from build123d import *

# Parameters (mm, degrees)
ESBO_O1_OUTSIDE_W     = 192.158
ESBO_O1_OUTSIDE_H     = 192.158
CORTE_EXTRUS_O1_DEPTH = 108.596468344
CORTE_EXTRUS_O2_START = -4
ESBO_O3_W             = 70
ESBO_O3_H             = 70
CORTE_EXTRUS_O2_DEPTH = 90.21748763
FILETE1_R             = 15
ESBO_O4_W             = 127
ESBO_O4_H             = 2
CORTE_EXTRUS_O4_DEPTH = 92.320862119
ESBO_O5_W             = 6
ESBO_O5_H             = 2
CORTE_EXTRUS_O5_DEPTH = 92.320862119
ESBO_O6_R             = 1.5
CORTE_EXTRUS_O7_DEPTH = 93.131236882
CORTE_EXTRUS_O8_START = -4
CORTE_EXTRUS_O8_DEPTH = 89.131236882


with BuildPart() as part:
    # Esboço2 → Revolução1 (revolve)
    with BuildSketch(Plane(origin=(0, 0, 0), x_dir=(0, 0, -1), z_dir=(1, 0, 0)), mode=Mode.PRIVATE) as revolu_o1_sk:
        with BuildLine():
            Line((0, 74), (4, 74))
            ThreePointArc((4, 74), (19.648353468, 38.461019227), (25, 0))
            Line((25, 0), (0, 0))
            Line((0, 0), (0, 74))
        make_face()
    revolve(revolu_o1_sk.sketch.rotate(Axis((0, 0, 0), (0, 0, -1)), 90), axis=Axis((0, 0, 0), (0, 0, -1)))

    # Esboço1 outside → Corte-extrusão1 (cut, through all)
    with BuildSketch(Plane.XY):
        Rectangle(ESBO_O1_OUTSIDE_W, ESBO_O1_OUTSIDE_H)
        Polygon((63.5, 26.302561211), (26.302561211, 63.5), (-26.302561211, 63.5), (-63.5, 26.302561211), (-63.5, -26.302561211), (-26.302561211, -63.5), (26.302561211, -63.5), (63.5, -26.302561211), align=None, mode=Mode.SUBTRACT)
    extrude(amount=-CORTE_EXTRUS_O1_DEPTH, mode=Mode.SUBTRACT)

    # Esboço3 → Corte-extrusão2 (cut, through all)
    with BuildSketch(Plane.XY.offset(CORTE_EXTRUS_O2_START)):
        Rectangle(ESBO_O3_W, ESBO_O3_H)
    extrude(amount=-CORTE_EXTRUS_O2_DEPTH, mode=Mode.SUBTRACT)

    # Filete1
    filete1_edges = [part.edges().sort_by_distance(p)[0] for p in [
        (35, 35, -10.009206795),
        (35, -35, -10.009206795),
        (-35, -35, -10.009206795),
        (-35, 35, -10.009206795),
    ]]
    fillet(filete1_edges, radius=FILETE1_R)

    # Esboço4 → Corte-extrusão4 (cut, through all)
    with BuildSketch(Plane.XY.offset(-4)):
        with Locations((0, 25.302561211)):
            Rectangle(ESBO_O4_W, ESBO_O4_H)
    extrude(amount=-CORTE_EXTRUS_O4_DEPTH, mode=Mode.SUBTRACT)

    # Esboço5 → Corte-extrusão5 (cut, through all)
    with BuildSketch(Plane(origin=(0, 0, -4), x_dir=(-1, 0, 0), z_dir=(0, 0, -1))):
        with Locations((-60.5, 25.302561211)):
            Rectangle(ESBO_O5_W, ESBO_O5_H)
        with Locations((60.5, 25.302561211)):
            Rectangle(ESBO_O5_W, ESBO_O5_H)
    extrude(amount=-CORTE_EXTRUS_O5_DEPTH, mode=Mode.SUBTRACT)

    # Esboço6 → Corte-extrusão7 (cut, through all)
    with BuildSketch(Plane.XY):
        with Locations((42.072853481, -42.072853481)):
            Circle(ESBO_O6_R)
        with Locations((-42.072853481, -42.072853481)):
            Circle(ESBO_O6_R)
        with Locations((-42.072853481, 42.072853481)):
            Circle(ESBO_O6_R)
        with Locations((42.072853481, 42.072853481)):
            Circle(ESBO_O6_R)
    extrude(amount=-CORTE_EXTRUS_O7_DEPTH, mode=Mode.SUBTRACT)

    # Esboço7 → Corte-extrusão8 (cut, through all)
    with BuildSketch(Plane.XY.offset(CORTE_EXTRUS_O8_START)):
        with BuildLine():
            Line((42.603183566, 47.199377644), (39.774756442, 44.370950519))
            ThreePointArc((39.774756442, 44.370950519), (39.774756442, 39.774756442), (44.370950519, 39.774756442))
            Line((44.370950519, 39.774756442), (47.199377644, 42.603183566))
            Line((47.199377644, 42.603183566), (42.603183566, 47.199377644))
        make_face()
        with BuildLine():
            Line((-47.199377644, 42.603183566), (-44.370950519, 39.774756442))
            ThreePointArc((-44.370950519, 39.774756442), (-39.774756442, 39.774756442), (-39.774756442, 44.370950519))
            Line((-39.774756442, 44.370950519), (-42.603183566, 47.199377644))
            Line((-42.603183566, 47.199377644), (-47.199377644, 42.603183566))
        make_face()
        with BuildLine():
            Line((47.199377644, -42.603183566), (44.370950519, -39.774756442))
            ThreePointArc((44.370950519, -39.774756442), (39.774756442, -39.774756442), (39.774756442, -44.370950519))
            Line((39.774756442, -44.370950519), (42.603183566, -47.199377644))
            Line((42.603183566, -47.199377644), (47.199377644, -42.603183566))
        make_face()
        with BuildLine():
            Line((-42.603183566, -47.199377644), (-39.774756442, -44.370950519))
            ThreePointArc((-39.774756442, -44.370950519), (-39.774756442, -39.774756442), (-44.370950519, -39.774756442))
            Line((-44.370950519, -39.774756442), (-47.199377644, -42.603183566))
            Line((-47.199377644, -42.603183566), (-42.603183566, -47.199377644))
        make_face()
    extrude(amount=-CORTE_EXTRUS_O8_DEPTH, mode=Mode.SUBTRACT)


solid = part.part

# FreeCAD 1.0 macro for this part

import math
import FreeCAD as App
import Part
import Sketcher

V = App.Vector


def edges_at(feature, points):
    """Names of the edges that pass closest to the given points."""
    edges = feature.Shape.Edges
    near = lambda p: min(range(len(edges)), key=lambda i: edges[i].distToShape(Part.Vertex(*p))[0])
    return sorted({f"Edge{near(p) + 1}" for p in points})

doc = App.newDocument("Part")
params = doc.addObject("Spreadsheet::Sheet", "Params")
for row, (alias, value) in enumerate([
    ("sketch1_width", "74 mm"),
    ("sketch1_height", "4 mm"),
    ("sketch1_height2", "25 mm"),
    ("revolution_angle", "360 deg"),
    ("sketch3_width", "70 mm"),
    ("fillet_radius", "15 mm"),
    ("sketch4_width", "127 mm"),
    ("sketch4_height", "2 mm"),
    ("sketch5_width", "6 mm"),
    ("sketch5_height", "2 mm"),
    ("sketch6_diameter", "3 mm"),
    ("sketch7_radius", "3.25 mm"),
    ("sketch7_length", "4 mm"),
], start=1):
    params.set(f"A{row}", alias)
    params.set(f"B{row}", "=" + value)
    params.setAlias(f"B{row}", alias)

body = doc.addObject("PartDesign::Body", "Body")

# Sketch on YZ plane
sketch1 = body.newObject("Sketcher::SketchObject", "Sketch")
sketch1.AttachmentSupport = (doc.getObject("YZ_Plane"), [""])
sketch1.MapMode = "FlatFace"
sketch1.addGeometry(Part.LineSegment(V(74, -4, 0), V(74, 0, 0)), False)
sketch1.addGeometry(Part.LineSegment(V(74, 0, 0), V(0, 0, 0)), False)
sketch1.addGeometry(Part.LineSegment(V(0, 0, 0), V(0, -25, 0)), False)
sketch1.addGeometry(Part.ArcOfCircle(Part.Circle(V(0, 115.9, 0), V(0, 0, 1), 140.9), math.radians(-90), math.radians(-58)), False)
sketch1.addConstraint(Sketcher.Constraint("Coincident", 0, 2, 1, 1))
sketch1.addConstraint(Sketcher.Constraint("Coincident", 1, 2, 2, 1))
sketch1.addConstraint(Sketcher.Constraint("Coincident", 2, 2, 3, 1))
sketch1.addConstraint(Sketcher.Constraint("Coincident", 3, 2, 0, 1))
sketch1.addConstraint(Sketcher.Constraint("Vertical", 0))
sketch1.addConstraint(Sketcher.Constraint("Horizontal", 1))
sketch1.addConstraint(Sketcher.Constraint("Vertical", 2))
sketch1.addConstraint(Sketcher.Constraint("Coincident", 1, 2, -1, 1))
sketch1.addConstraint(Sketcher.Constraint("PointOnObject", 3, 3, -2))
sketch1.addConstraint(Sketcher.Constraint("DistanceX", 1, 2, 1, 1, 74.0))
sketch1.addConstraint(Sketcher.Constraint("DistanceY", 0, 1, 0, 2, 4.0))
sketch1.addConstraint(Sketcher.Constraint("DistanceY", 2, 2, 2, 1, 25.0))
sketch1.setExpression("Constraints[9]", "Params.sketch1_width")
sketch1.setExpression("Constraints[10]", "Params.sketch1_height")
sketch1.setExpression("Constraints[11]", "Params.sketch1_height2")
revolution = body.newObject("PartDesign::Revolution", "Revolution")
revolution.Profile = sketch1
revolution.ReferenceAxis = (sketch1, ["V_Axis"])
revolution.setExpression("Angle", "Params.revolution_angle")

# Sketch on XY plane
sketch2 = body.newObject("Sketcher::SketchObject", "Sketch001")
sketch2.AttachmentSupport = (doc.getObject("XY_Plane"), [""])
sketch2.MapMode = "FlatFace"
sketch2.addGeometry(Part.LineSegment(V(-96, 96, 0), V(-96, -96, 0)), False)
sketch2.addGeometry(Part.LineSegment(V(-96, -96, 0), V(96, -96, 0)), False)
sketch2.addGeometry(Part.LineSegment(V(96, -96, 0), V(96, 96, 0)), False)
sketch2.addGeometry(Part.LineSegment(V(96, 96, 0), V(-96, 96, 0)), False)
sketch2.addGeometry(Part.LineSegment(V(26, 64, 0), V(64, 26, 0)), False)
sketch2.addGeometry(Part.LineSegment(V(64, 26, 0), V(64, -26, 0)), False)
sketch2.addGeometry(Part.LineSegment(V(64, -26, 0), V(26, -64, 0)), False)
sketch2.addGeometry(Part.LineSegment(V(26, -64, 0), V(-26, -64, 0)), False)
sketch2.addGeometry(Part.LineSegment(V(-26, -64, 0), V(-64, -26, 0)), False)
sketch2.addGeometry(Part.LineSegment(V(-64, -26, 0), V(-64, 26, 0)), False)
sketch2.addGeometry(Part.LineSegment(V(-64, 26, 0), V(-26, 64, 0)), False)
sketch2.addGeometry(Part.LineSegment(V(-26, 64, 0), V(26, 64, 0)), False)
sketch2.addConstraint(Sketcher.Constraint("Coincident", 0, 2, 1, 1))
sketch2.addConstraint(Sketcher.Constraint("Coincident", 1, 2, 2, 1))
sketch2.addConstraint(Sketcher.Constraint("Coincident", 2, 2, 3, 1))
sketch2.addConstraint(Sketcher.Constraint("Coincident", 3, 2, 0, 1))
sketch2.addConstraint(Sketcher.Constraint("Coincident", 4, 2, 5, 1))
sketch2.addConstraint(Sketcher.Constraint("Coincident", 5, 2, 6, 1))
sketch2.addConstraint(Sketcher.Constraint("Coincident", 6, 2, 7, 1))
sketch2.addConstraint(Sketcher.Constraint("Coincident", 7, 2, 8, 1))
sketch2.addConstraint(Sketcher.Constraint("Coincident", 8, 2, 9, 1))
sketch2.addConstraint(Sketcher.Constraint("Coincident", 9, 2, 10, 1))
sketch2.addConstraint(Sketcher.Constraint("Coincident", 10, 2, 11, 1))
sketch2.addConstraint(Sketcher.Constraint("Coincident", 11, 2, 4, 1))
sketch2.addConstraint(Sketcher.Constraint("Vertical", 0))
sketch2.addConstraint(Sketcher.Constraint("Horizontal", 1))
sketch2.addConstraint(Sketcher.Constraint("Vertical", 2))
sketch2.addConstraint(Sketcher.Constraint("Horizontal", 3))
sketch2.addConstraint(Sketcher.Constraint("Vertical", 5))
sketch2.addConstraint(Sketcher.Constraint("Horizontal", 7))
sketch2.addConstraint(Sketcher.Constraint("Vertical", 9))
sketch2.addConstraint(Sketcher.Constraint("Horizontal", 11))
sketch2.addConstraint(Sketcher.Constraint("Symmetric", 0, 2, 2, 2, -1, 1))
sketch2.addConstraint(Sketcher.Constraint("Symmetric", 4, 2, 8, 2, -1, 1))
sketch2.addConstraint(Sketcher.Constraint("Symmetric", 6, 2, 10, 2, -1, 1))
sketch2.addConstraint(Sketcher.Constraint("Perpendicular", 4, 6))
sketch2.addConstraint(Sketcher.Constraint("Perpendicular", 6, 8))
sketch2.addConstraint(Sketcher.Constraint("Perpendicular", 8, 10))
sketch2.addConstraint(Sketcher.Constraint("Horizontal", 5, 2, 8, 2))
sketch2.addConstraint(Sketcher.Constraint("Vertical", 7, 2, 10, 2))
sketch2.addConstraint(Sketcher.Constraint("Equal", 3, 0))
sketch2.addConstraint(Sketcher.Constraint("Equal", 11, 5))
sketch2.addConstraint(Sketcher.Constraint("DistanceX", 8, 2, 5, 2, 127.0))
sketch2.addConstraint(Sketcher.Constraint("DistanceX", 1, 1, 1, 2, 192.158))
sketch2.addConstraint(Sketcher.Constraint("DistanceX", 7, 2, 7, 1, 52.605122))
pocket1 = body.newObject("PartDesign::Pocket", "Pocket")
pocket1.Profile = sketch2
pocket1.Type = "ThroughAll"

# Sketch on XY plane
sketch3 = body.newObject("Sketcher::SketchObject", "Sketch002")
sketch3.AttachmentSupport = (doc.getObject("XY_Plane"), [""])
sketch3.MapMode = "FlatFace"
sketch3.AttachmentOffset = App.Placement(V(0, 0, -4), App.Rotation())
sketch3.addGeometry(Part.LineSegment(V(-35, 35, 0), V(-35, -35, 0)), False)
sketch3.addGeometry(Part.LineSegment(V(-35, -35, 0), V(35, -35, 0)), False)
sketch3.addGeometry(Part.LineSegment(V(35, -35, 0), V(35, 35, 0)), False)
sketch3.addGeometry(Part.LineSegment(V(35, 35, 0), V(-35, 35, 0)), False)
sketch3.addConstraint(Sketcher.Constraint("Coincident", 0, 2, 1, 1))
sketch3.addConstraint(Sketcher.Constraint("Coincident", 1, 2, 2, 1))
sketch3.addConstraint(Sketcher.Constraint("Coincident", 2, 2, 3, 1))
sketch3.addConstraint(Sketcher.Constraint("Coincident", 3, 2, 0, 1))
sketch3.addConstraint(Sketcher.Constraint("Vertical", 0))
sketch3.addConstraint(Sketcher.Constraint("Horizontal", 1))
sketch3.addConstraint(Sketcher.Constraint("Vertical", 2))
sketch3.addConstraint(Sketcher.Constraint("Horizontal", 3))
sketch3.addConstraint(Sketcher.Constraint("Symmetric", 0, 2, 2, 2, -1, 1))
sketch3.addConstraint(Sketcher.Constraint("Equal", 3, 0))
sketch3.addConstraint(Sketcher.Constraint("DistanceX", 1, 1, 1, 2, 70.0))
sketch3.setExpression("Constraints[10]", "Params.sketch3_width")
pocket2 = body.newObject("PartDesign::Pocket", "Pocket001")
pocket2.Profile = sketch3
pocket2.Type = "ThroughAll"
doc.recompute()

fillet = body.newObject("PartDesign::Fillet", "Fillet")
fillet.Base = (pocket2, edges_at(pocket2, [
    (35, 35, -10.009),
    (35, -35, -10.009),
    (-35, -35, -10.009),
    (-35, 35, -10.009),
]))
fillet.setExpression("Radius", "Params.fillet_radius")

# Sketch on XY plane
sketch4 = body.newObject("Sketcher::SketchObject", "Sketch003")
sketch4.AttachmentSupport = (doc.getObject("XY_Plane"), [""])
sketch4.MapMode = "FlatFace"
sketch4.AttachmentOffset = App.Placement(V(0, 0, -4), App.Rotation())
sketch4.addGeometry(Part.LineSegment(V(-63.5, 26.3, 0), V(-63.5, 24.3, 0)), False)
sketch4.addGeometry(Part.LineSegment(V(-63.5, 24.3, 0), V(63.5, 24.3, 0)), False)
sketch4.addGeometry(Part.LineSegment(V(63.5, 24.3, 0), V(63.5, 26.3, 0)), False)
sketch4.addGeometry(Part.LineSegment(V(63.5, 26.3, 0), V(-63.5, 26.3, 0)), False)
sketch4.addConstraint(Sketcher.Constraint("Coincident", 0, 2, 1, 1))
sketch4.addConstraint(Sketcher.Constraint("Coincident", 1, 2, 2, 1))
sketch4.addConstraint(Sketcher.Constraint("Coincident", 2, 2, 3, 1))
sketch4.addConstraint(Sketcher.Constraint("Coincident", 3, 2, 0, 1))
sketch4.addConstraint(Sketcher.Constraint("Vertical", 0))
sketch4.addConstraint(Sketcher.Constraint("Horizontal", 1))
sketch4.addConstraint(Sketcher.Constraint("Vertical", 2))
sketch4.addConstraint(Sketcher.Constraint("Horizontal", 3))
sketch4.addConstraint(Sketcher.Constraint("DistanceX", 1, 1, 1, 2, 127.0))
sketch4.addConstraint(Sketcher.Constraint("DistanceY", 0, 2, 0, 1, 2.0))
sketch4.addConstraint(Sketcher.Constraint("DistanceX", 0, 2, -1, 1, 63.5))
sketch4.addConstraint(Sketcher.Constraint("DistanceY", -1, 1, 0, 2, 24.302561))
sketch4.setExpression("Constraints[8]", "Params.sketch4_width")
sketch4.setExpression("Constraints[9]", "Params.sketch4_height")
pocket3 = body.newObject("PartDesign::Pocket", "Pocket002")
pocket3.Profile = sketch4
pocket3.Type = "ThroughAll"

# Sketch on XY plane
sketch5 = body.newObject("Sketcher::SketchObject", "Sketch004")
sketch5.AttachmentSupport = (doc.getObject("XY_Plane"), [""])
sketch5.MapMode = "FlatFace"
sketch5.AttachmentOffset = App.Placement(V(0, 0, -4), App.Rotation())
sketch5.addGeometry(Part.LineSegment(V(63.5, 26.3, 0), V(63.5, 24.3, 0)), False)
sketch5.addGeometry(Part.LineSegment(V(63.5, 24.3, 0), V(57.5, 24.3, 0)), False)
sketch5.addGeometry(Part.LineSegment(V(57.5, 24.3, 0), V(57.5, 26.3, 0)), False)
sketch5.addGeometry(Part.LineSegment(V(57.5, 26.3, 0), V(63.5, 26.3, 0)), False)
sketch5.addGeometry(Part.LineSegment(V(-57.5, 26.3, 0), V(-57.5, 24.3, 0)), False)
sketch5.addGeometry(Part.LineSegment(V(-57.5, 24.3, 0), V(-63.5, 24.3, 0)), False)
sketch5.addGeometry(Part.LineSegment(V(-63.5, 24.3, 0), V(-63.5, 26.3, 0)), False)
sketch5.addGeometry(Part.LineSegment(V(-63.5, 26.3, 0), V(-57.5, 26.3, 0)), False)
sketch5.addConstraint(Sketcher.Constraint("Coincident", 0, 2, 1, 1))
sketch5.addConstraint(Sketcher.Constraint("Coincident", 1, 2, 2, 1))
sketch5.addConstraint(Sketcher.Constraint("Coincident", 2, 2, 3, 1))
sketch5.addConstraint(Sketcher.Constraint("Coincident", 3, 2, 0, 1))
sketch5.addConstraint(Sketcher.Constraint("Coincident", 4, 2, 5, 1))
sketch5.addConstraint(Sketcher.Constraint("Coincident", 5, 2, 6, 1))
sketch5.addConstraint(Sketcher.Constraint("Coincident", 6, 2, 7, 1))
sketch5.addConstraint(Sketcher.Constraint("Coincident", 7, 2, 4, 1))
sketch5.addConstraint(Sketcher.Constraint("Vertical", 0))
sketch5.addConstraint(Sketcher.Constraint("Horizontal", 1))
sketch5.addConstraint(Sketcher.Constraint("Vertical", 2))
sketch5.addConstraint(Sketcher.Constraint("Horizontal", 3))
sketch5.addConstraint(Sketcher.Constraint("Vertical", 4))
sketch5.addConstraint(Sketcher.Constraint("Horizontal", 5))
sketch5.addConstraint(Sketcher.Constraint("Vertical", 6))
sketch5.addConstraint(Sketcher.Constraint("Horizontal", 7))
sketch5.addConstraint(Sketcher.Constraint("Symmetric", 1, 2, 4, 2, -2))
sketch5.addConstraint(Sketcher.Constraint("Symmetric", 3, 2, 6, 2, -2))
sketch5.addConstraint(Sketcher.Constraint("DistanceX", 1, 2, 1, 1, 6.0))
sketch5.addConstraint(Sketcher.Constraint("DistanceY", 0, 2, 0, 1, 2.0))
sketch5.addConstraint(Sketcher.Constraint("DistanceX", 4, 2, 1, 2, 115.0))
sketch5.addConstraint(Sketcher.Constraint("DistanceY", -1, 1, 0, 2, 24.302561))
sketch5.setExpression("Constraints[18]", "Params.sketch5_width")
sketch5.setExpression("Constraints[19]", "Params.sketch5_height")
pocket4 = body.newObject("PartDesign::Pocket", "Pocket003")
pocket4.Profile = sketch5
pocket4.Type = "ThroughAll"
pocket4.Reversed = True

# Sketch on XY plane
sketch6 = body.newObject("Sketcher::SketchObject", "Sketch005")
sketch6.AttachmentSupport = (doc.getObject("XY_Plane"), [""])
sketch6.MapMode = "FlatFace"
sketch6.addGeometry(Part.Circle(V(42.1, -42.1, 0), V(0, 0, 1), 1.5), False)
sketch6.addGeometry(Part.Circle(V(-42.1, -42.1, 0), V(0, 0, 1), 1.5), False)
sketch6.addGeometry(Part.Circle(V(-42.1, 42.1, 0), V(0, 0, 1), 1.5), False)
sketch6.addGeometry(Part.Circle(V(42.1, 42.1, 0), V(0, 0, 1), 1.5), False)
sketch6.addConstraint(Sketcher.Constraint("Equal", 0, 1))
sketch6.addConstraint(Sketcher.Constraint("Equal", 1, 2))
sketch6.addConstraint(Sketcher.Constraint("Equal", 2, 3))
sketch6.addConstraint(Sketcher.Constraint("Symmetric", 0, 3, 2, 3, -1, 1))
sketch6.addConstraint(Sketcher.Constraint("Symmetric", 1, 3, 3, 3, -1, 1))
sketch6.addConstraint(Sketcher.Constraint("Symmetric", 0, 3, 1, 3, -2))
sketch6.addConstraint(Sketcher.Constraint("Diameter", 0, 3.0))
sketch6.addConstraint(Sketcher.Constraint("DistanceX", -1, 1, 0, 3, 42.072853))
sketch6.addConstraint(Sketcher.Constraint("DistanceY", 0, 3, -1, 1, 42.072853))
sketch6.setExpression("Constraints[6]", "Params.sketch6_diameter")
pocket5 = body.newObject("PartDesign::Pocket", "Pocket004")
pocket5.Profile = sketch6
pocket5.Type = "ThroughAll"

# Sketch on XY plane
sketch7 = body.newObject("Sketcher::SketchObject", "Sketch006")
sketch7.AttachmentSupport = (doc.getObject("XY_Plane"), [""])
sketch7.MapMode = "FlatFace"
sketch7.AttachmentOffset = App.Placement(V(0, 0, -4), App.Rotation())
sketch7.addGeometry(Part.LineSegment(V(42.6, 47.2, 0), V(39.8, 44.4, 0)), False)
sketch7.addGeometry(Part.ArcOfCircle(Part.Circle(V(42.1, 42.1, 0), V(0, 0, 1), 3.2), math.radians(135), math.radians(315)), False)
sketch7.addGeometry(Part.LineSegment(V(44.4, 39.8, 0), V(47.2, 42.6, 0)), False)
sketch7.addGeometry(Part.LineSegment(V(47.2, 42.6, 0), V(42.6, 47.2, 0)), False)
sketch7.addGeometry(Part.LineSegment(V(-47.2, 42.6, 0), V(-44.4, 39.8, 0)), False)
sketch7.addGeometry(Part.ArcOfCircle(Part.Circle(V(-42.1, 42.1, 0), V(0, 0, 1), 3.2), math.radians(-135), math.radians(45)), False)
sketch7.addGeometry(Part.LineSegment(V(-39.8, 44.4, 0), V(-42.6, 47.2, 0)), False)
sketch7.addGeometry(Part.LineSegment(V(-42.6, 47.2, 0), V(-47.2, 42.6, 0)), False)
sketch7.addGeometry(Part.LineSegment(V(47.2, -42.6, 0), V(44.4, -39.8, 0)), False)
sketch7.addGeometry(Part.ArcOfCircle(Part.Circle(V(42.1, -42.1, 0), V(0, 0, 1), 3.2), math.radians(45), math.radians(225)), False)
sketch7.addGeometry(Part.LineSegment(V(39.8, -44.4, 0), V(42.6, -47.2, 0)), False)
sketch7.addGeometry(Part.LineSegment(V(42.6, -47.2, 0), V(47.2, -42.6, 0)), False)
sketch7.addGeometry(Part.LineSegment(V(-42.6, -47.2, 0), V(-39.8, -44.4, 0)), False)
sketch7.addGeometry(Part.ArcOfCircle(Part.Circle(V(-42.1, -42.1, 0), V(0, 0, 1), 3.2), math.radians(-45), math.radians(135)), False)
sketch7.addGeometry(Part.LineSegment(V(-44.4, -39.8, 0), V(-47.2, -42.6, 0)), False)
sketch7.addGeometry(Part.LineSegment(V(-47.2, -42.6, 0), V(-42.6, -47.2, 0)), False)
sketch7.addConstraint(Sketcher.Constraint("Tangent", 0, 2, 1, 1))
sketch7.addConstraint(Sketcher.Constraint("Tangent", 1, 2, 2, 1))
sketch7.addConstraint(Sketcher.Constraint("Coincident", 2, 2, 3, 1))
sketch7.addConstraint(Sketcher.Constraint("Coincident", 3, 2, 0, 1))
sketch7.addConstraint(Sketcher.Constraint("Tangent", 4, 2, 5, 1))
sketch7.addConstraint(Sketcher.Constraint("Tangent", 5, 2, 6, 1))
sketch7.addConstraint(Sketcher.Constraint("Coincident", 6, 2, 7, 1))
sketch7.addConstraint(Sketcher.Constraint("Coincident", 7, 2, 4, 1))
sketch7.addConstraint(Sketcher.Constraint("Tangent", 8, 2, 9, 1))
sketch7.addConstraint(Sketcher.Constraint("Tangent", 9, 2, 10, 1))
sketch7.addConstraint(Sketcher.Constraint("Coincident", 10, 2, 11, 1))
sketch7.addConstraint(Sketcher.Constraint("Coincident", 11, 2, 8, 1))
sketch7.addConstraint(Sketcher.Constraint("Tangent", 12, 2, 13, 1))
sketch7.addConstraint(Sketcher.Constraint("Tangent", 13, 2, 14, 1))
sketch7.addConstraint(Sketcher.Constraint("Coincident", 14, 2, 15, 1))
sketch7.addConstraint(Sketcher.Constraint("Coincident", 15, 2, 12, 1))
sketch7.addConstraint(Sketcher.Constraint("Equal", 1, 5))
sketch7.addConstraint(Sketcher.Constraint("Equal", 5, 9))
sketch7.addConstraint(Sketcher.Constraint("Equal", 9, 13))
sketch7.addConstraint(Sketcher.Constraint("Symmetric", 5, 3, 9, 3, -1, 1))
sketch7.addConstraint(Sketcher.Constraint("Symmetric", 1, 3, 13, 3, -1, 1))
sketch7.addConstraint(Sketcher.Constraint("Symmetric", 6, 2, 10, 2, -1, 1))
sketch7.addConstraint(Sketcher.Constraint("Symmetric", 7, 2, 11, 2, -1, 1))
sketch7.addConstraint(Sketcher.Constraint("Symmetric", 2, 2, 14, 2, -1, 1))
sketch7.addConstraint(Sketcher.Constraint("Symmetric", 3, 2, 15, 2, -1, 1))
sketch7.addConstraint(Sketcher.Constraint("Symmetric", 1, 3, 5, 3, -2))
sketch7.addConstraint(Sketcher.Constraint("Symmetric", 3, 2, 6, 2, -2))
sketch7.addConstraint(Sketcher.Constraint("Symmetric", 2, 2, 7, 2, -2))
sketch7.addConstraint(Sketcher.Constraint("Parallel", 0, 2))
sketch7.addConstraint(Sketcher.Constraint("Perpendicular", 2, 3))
sketch7.addConstraint(Sketcher.Constraint("Parallel", 3, 4))
sketch7.addConstraint(Sketcher.Constraint("Radius", 1, 3.25))
sketch7.addConstraint(Sketcher.Constraint("Distance", 0, 4.0))
sketch7.addConstraint(Sketcher.Constraint("DistanceY", -1, 1, 0, 2, 44.370951))
sketch7.addConstraint(Sketcher.Constraint("DistanceX", -1, 1, 1, 2, 44.370951))
sketch7.setExpression("Constraints[31]", "Params.sketch7_radius")
sketch7.setExpression("Constraints[32]", "Params.sketch7_length")
pocket6 = body.newObject("PartDesign::Pocket", "Pocket005")
pocket6.Profile = sketch7
pocket6.Type = "ThroughAll"

doc.recompute()
